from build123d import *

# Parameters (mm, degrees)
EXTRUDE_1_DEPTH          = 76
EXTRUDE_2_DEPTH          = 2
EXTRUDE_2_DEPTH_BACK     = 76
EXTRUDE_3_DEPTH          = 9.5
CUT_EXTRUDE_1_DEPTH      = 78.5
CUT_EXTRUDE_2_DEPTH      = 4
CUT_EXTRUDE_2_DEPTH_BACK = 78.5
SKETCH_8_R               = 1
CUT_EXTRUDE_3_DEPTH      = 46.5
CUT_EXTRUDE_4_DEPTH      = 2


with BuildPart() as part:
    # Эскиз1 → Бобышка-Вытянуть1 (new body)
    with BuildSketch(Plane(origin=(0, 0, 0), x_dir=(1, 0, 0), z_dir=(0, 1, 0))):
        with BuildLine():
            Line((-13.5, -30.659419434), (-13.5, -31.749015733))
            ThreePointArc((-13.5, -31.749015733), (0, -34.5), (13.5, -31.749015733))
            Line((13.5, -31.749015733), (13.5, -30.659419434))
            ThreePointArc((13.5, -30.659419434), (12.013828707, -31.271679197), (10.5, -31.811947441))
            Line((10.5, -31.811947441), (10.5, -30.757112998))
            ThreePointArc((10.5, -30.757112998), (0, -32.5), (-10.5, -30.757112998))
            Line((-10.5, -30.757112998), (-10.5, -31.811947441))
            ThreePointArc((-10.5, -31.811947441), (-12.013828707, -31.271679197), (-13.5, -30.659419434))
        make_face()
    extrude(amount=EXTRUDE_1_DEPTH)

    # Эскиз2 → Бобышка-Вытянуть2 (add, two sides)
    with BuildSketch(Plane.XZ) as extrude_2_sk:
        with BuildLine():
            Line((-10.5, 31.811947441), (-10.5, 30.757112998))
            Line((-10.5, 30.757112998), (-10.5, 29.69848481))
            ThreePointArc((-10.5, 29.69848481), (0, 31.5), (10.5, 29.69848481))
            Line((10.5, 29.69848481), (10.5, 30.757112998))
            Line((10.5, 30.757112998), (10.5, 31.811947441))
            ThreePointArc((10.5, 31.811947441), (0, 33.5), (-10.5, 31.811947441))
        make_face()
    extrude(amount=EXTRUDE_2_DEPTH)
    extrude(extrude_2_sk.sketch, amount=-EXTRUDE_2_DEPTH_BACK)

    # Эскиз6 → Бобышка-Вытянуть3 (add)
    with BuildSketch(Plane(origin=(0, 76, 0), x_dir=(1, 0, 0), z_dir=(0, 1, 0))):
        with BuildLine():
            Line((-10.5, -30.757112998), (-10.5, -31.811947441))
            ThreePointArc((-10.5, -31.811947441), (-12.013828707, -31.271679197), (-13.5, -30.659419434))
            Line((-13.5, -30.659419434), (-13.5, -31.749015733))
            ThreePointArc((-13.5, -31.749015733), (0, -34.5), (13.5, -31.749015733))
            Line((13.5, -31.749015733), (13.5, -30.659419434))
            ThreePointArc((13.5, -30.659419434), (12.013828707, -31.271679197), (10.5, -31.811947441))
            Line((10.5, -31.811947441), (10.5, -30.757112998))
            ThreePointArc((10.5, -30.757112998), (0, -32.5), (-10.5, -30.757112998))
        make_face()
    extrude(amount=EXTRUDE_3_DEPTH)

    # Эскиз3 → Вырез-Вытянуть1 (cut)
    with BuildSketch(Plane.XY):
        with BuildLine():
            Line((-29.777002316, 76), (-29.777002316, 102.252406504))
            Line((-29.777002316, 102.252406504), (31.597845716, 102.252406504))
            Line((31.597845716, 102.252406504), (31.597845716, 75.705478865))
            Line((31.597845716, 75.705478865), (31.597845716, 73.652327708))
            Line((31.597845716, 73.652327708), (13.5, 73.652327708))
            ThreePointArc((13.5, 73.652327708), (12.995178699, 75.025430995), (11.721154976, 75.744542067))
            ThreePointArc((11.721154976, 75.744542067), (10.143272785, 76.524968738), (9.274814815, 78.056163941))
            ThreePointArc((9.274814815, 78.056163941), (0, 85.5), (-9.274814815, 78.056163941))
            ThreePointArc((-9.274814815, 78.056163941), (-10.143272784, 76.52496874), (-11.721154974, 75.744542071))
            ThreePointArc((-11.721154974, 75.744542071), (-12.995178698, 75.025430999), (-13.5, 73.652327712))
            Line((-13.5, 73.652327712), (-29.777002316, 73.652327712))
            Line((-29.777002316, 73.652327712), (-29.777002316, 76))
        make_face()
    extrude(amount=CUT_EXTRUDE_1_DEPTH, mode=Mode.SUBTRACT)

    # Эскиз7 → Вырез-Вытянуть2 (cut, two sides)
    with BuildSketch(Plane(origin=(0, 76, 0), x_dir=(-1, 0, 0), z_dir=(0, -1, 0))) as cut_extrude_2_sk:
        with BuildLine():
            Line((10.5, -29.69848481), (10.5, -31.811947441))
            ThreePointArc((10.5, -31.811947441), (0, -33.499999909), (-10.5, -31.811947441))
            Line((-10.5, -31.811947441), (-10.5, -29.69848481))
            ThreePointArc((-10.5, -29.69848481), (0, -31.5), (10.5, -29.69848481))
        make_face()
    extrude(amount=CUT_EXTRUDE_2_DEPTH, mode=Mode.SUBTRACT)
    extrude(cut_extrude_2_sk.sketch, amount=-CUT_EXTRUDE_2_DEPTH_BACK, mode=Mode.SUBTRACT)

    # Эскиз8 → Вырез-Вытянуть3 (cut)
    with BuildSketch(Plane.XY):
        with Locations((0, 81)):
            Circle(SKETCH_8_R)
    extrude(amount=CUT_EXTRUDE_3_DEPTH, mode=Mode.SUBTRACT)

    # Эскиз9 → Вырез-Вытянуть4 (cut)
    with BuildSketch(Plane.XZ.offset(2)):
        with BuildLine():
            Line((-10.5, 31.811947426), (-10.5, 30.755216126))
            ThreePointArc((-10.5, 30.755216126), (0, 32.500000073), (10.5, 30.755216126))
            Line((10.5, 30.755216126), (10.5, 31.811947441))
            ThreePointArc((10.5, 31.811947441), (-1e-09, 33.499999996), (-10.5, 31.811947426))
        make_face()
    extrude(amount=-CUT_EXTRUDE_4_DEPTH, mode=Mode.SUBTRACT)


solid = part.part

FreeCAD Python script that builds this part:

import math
import FreeCAD as App
import Part
import Sketcher
from FreeCAD import Vector

doc = App.newDocument("Part")
body = doc.addObject("PartDesign::Body", "Body")

# Sketch on XZ plane
sketch1 = body.newObject("Sketcher::SketchObject", "Sketch")
sketch1.AttachmentSupport = (doc.getObject("XZ_Plane"), [""])
sketch1.MapMode = "FlatFace"
sketch1.addGeometry(Part.LineSegment(Vector(-13.5, 30.7, 0), Vector(-13.5, 31.7, 0)), False)
sketch1.addGeometry(Part.ArcOfCircle(Part.Circle(Vector(0, 0, 0), Vector(0, 0, 1), 34.5), math.radians(67), math.radians(113)), False)
sketch1.addGeometry(Part.LineSegment(Vector(13.5, 31.7, 0), Vector(13.5, 30.7, 0)), False)
sketch1.addGeometry(Part.ArcOfCircle(Part.Circle(Vector(0, 0, 0), Vector(0, 0, 1), 33.5), math.radians(66.24), math.radians(71.73)), False)
sketch1.addGeometry(Part.LineSegment(Vector(10.5, 31.8, 0), Vector(10.5, 30.8, 0)), False)
sketch1.addGeometry(Part.ArcOfCircle(Part.Circle(Vector(0, 0, 0), Vector(0, 0, 1), 32.5), math.radians(71), math.radians(109)), False)
sketch1.addGeometry(Part.LineSegment(Vector(-10.5, 30.8, 0), Vector(-10.5, 31.8, 0)), False)
sketch1.addGeometry(Part.ArcOfCircle(Part.Circle(Vector(0, 0, 0), Vector(0, 0, 1), 33.5), math.radians(108.27), math.radians(113.76)), False)
sketch1.addConstraint(Sketcher.Constraint("Coincident", 0, 2, 1, 2))
sketch1.addConstraint(Sketcher.Constraint("Coincident", 1, 1, 2, 1))
sketch1.addConstraint(Sketcher.Constraint("Coincident", 2, 2, 3, 1))
sketch1.addConstraint(Sketcher.Constraint("Coincident", 3, 2, 4, 1))
sketch1.addConstraint(Sketcher.Constraint("Coincident", 4, 2, 5, 1))
sketch1.addConstraint(Sketcher.Constraint("Coincident", 5, 2, 6, 1))
sketch1.addConstraint(Sketcher.Constraint("Coincident", 6, 2, 7, 1))
sketch1.addConstraint(Sketcher.Constraint("Coincident", 7, 2, 0, 1))
sketch1.addConstraint(Sketcher.Constraint("Vertical", 0))
sketch1.addConstraint(Sketcher.Constraint("Vertical", 2))
sketch1.addConstraint(Sketcher.Constraint("Vertical", 4))
sketch1.addConstraint(Sketcher.Constraint("Vertical", 6))
sketch1.addConstraint(Sketcher.Constraint("Coincident", 1, 3, -1, 1))
sketch1.addConstraint(Sketcher.Constraint("Coincident", 3, 3, -1, 1))
sketch1.addConstraint(Sketcher.Constraint("Coincident", 5, 3, -1, 1))
sketch1.addConstraint(Sketcher.Constraint("Coincident", 7, 3, -1, 1))
sketch1.addConstraint(Sketcher.Constraint("Equal", 3, 7))
sketch1.addConstraint(Sketcher.Constraint("Horizontal", 0, 2, 1, 1))
sketch1.addConstraint(Sketcher.Constraint("Horizontal", 4, 2, 5, 2))
sketch1.addConstraint(Sketcher.Constraint("Radius", 1, 34.5))
sketch1.addConstraint(Sketcher.Constraint("Radius", 3, 33.5))
sketch1.addConstraint(Sketcher.Constraint("Radius", 5, 32.5))
sketch1.addConstraint(Sketcher.Constraint("DistanceX", 0, 2, 1, 1, 27.0))
sketch1.addConstraint(Sketcher.Constraint("DistanceX", 3, 2, 1, 1, 3.0))
pad1 = body.newObject("PartDesign::Pad", "Pad")
pad1.Profile = sketch1
pad1.Length = 76
pad1.Reversed = True

# Sketch on XZ plane
sketch2 = body.newObject("Sketcher::SketchObject", "Sketch001")
sketch2.AttachmentSupport = (doc.getObject("XZ_Plane"), [""])
sketch2.MapMode = "FlatFace"
sketch2.addGeometry(Part.LineSegment(Vector(-10.5, 31.8, 0), Vector(-10.5, 29.7, 0)), False)
sketch2.addGeometry(Part.ArcOfCircle(Part.Circle(Vector(0, 0, 0), Vector(0, 0, 1), 31.5), math.radians(71), math.radians(109)), False)
sketch2.addGeometry(Part.LineSegment(Vector(10.5, 29.7, 0), Vector(10.5, 31.8, 0)), False)
sketch2.addGeometry(Part.ArcOfCircle(Part.Circle(Vector(0, 0, 0), Vector(0, 0, 1), 33.5), math.radians(72), math.radians(108)), False)
sketch2.addConstraint(Sketcher.Constraint("Coincident", 0, 2, 1, 2))
sketch2.addConstraint(Sketcher.Constraint("Coincident", 1, 1, 2, 1))
sketch2.addConstraint(Sketcher.Constraint("Coincident", 2, 2, 3, 1))
sketch2.addConstraint(Sketcher.Constraint("Coincident", 3, 2, 0, 1))
sketch2.addConstraint(Sketcher.Constraint("Vertical", 0))
sketch2.addConstraint(Sketcher.Constraint("Vertical", 2))
sketch2.addConstraint(Sketcher.Constraint("Coincident", 1, 3, -1, 1))
sketch2.addConstraint(Sketcher.Constraint("Coincident", 3, 3, -1, 1))
sketch2.addConstraint(Sketcher.Constraint("Horizontal", 0, 2, 1, 1))
sketch2.addConstraint(Sketcher.Constraint("Radius", 1, 31.5))
sketch2.addConstraint(Sketcher.Constraint("Radius", 3, 33.5))
sketch2.addConstraint(Sketcher.Constraint("DistanceX", 0, 2, 1, 1, 21.0))
pad2 = body.newObject("PartDesign::Pad", "Pad001")
pad2.Profile = sketch2
pad2.Type = "TwoLengths"
pad2.Length = 2
pad2.Length2 = 76

# Sketch on XZ plane
sketch3 = body.newObject("Sketcher::SketchObject", "Sketch002")
sketch3.AttachmentSupport = (doc.getObject("XZ_Plane"), [""])
sketch3.MapMode = "FlatFace"
sketch3.AttachmentOffset = App.Placement(Vector(0, 0, -76), App.Rotation())
sketch3.addGeometry(Part.LineSegment(Vector(-10.5, 30.8, 0), Vector(-10.5, 31.8, 0)), False)
sketch3.addGeometry(Part.ArcOfCircle(Part.Circle(Vector(0, 0, 0), Vector(0, 0, 1), 33.5), math.radians(108.27), math.radians(113.76)), False)
sketch3.addGeometry(Part.LineSegment(Vector(-13.5, 30.7, 0), Vector(-13.5, 31.7, 0)), False)
sketch3.addGeometry(Part.ArcOfCircle(Part.Circle(Vector(0, 0, 0), Vector(0, 0, 1), 34.5), math.radians(67), math.radians(113)), False)
sketch3.addGeometry(Part.LineSegment(Vector(13.5, 31.7, 0), Vector(13.5, 30.7, 0)), False)
sketch3.addGeometry(Part.ArcOfCircle(Part.Circle(Vector(0, 0, 0), Vector(0, 0, 1), 33.5), math.radians(66.24), math.radians(71.73)), False)
sketch3.addGeometry(Part.LineSegment(Vector(10.5, 31.8, 0), Vector(10.5, 30.8, 0)), False)
sketch3.addGeometry(Part.ArcOfCircle(Part.Circle(Vector(0, 0, 0), Vector(0, 0, 1), 32.5), math.radians(71), math.radians(109)), False)
sketch3.addConstraint(Sketcher.Constraint("Coincident", 0, 2, 1, 1))
sketch3.addConstraint(Sketcher.Constraint("Coincident", 1, 2, 2, 1))
sketch3.addConstraint(Sketcher.Constraint("Coincident", 2, 2, 3, 2))
sketch3.addConstraint(Sketcher.Constraint("Coincident", 3, 1, 4, 1))
sketch3.addConstraint(Sketcher.Constraint("Coincident", 4, 2, 5, 1))
sketch3.addConstraint(Sketcher.Constraint("Coincident", 5, 2, 6, 1))
sketch3.addConstraint(Sketcher.Constraint("Coincident", 6, 2, 7, 1))
sketch3.addConstraint(Sketcher.Constraint("Coincident", 7, 2, 0, 1))
sketch3.addConstraint(Sketcher.Constraint("Vertical", 0))
sketch3.addConstraint(Sketcher.Constraint("Vertical", 2))
sketch3.addConstraint(Sketcher.Constraint("Vertical", 4))
sketch3.addConstraint(Sketcher.Constraint("Vertical", 6))
sketch3.addConstraint(Sketcher.Constraint("Coincident", 1, 3, -1, 1))
sketch3.addConstraint(Sketcher.Constraint("Coincident", 3, 3, -1, 1))
sketch3.addConstraint(Sketcher.Constraint("Coincident", 5, 3, -1, 1))
sketch3.addConstraint(Sketcher.Constraint("Coincident", 7, 3, -1, 1))
sketch3.addConstraint(Sketcher.Constraint("Equal", 1, 5))
sketch3.addConstraint(Sketcher.Constraint("Horizontal", 2, 2, 3, 1))
sketch3.addConstraint(Sketcher.Constraint("Horizontal", 0, 2, 5, 2))
sketch3.addConstraint(Sketcher.Constraint("Radius", 1, 33.5))
sketch3.addConstraint(Sketcher.Constraint("Radius", 3, 34.5))
sketch3.addConstraint(Sketcher.Constraint("Radius", 7, 32.5))
sketch3.addConstraint(Sketcher.Constraint("DistanceX", 1, 2, 0, 2, 3.0))
sketch3.addConstraint(Sketcher.Constraint("DistanceX", 0, 2, 3, 1, 24.0))
pad3 = body.newObject("PartDesign::Pad", "Pad002")
pad3.Profile = sketch3
pad3.Length = 9.5
pad3.Reversed = True

# Sketch on XY plane
sketch4 = body.newObject("Sketcher::SketchObject", "Sketch003")
sketch4.AttachmentSupport = (doc.getObject("XY_Plane"), [""])
sketch4.MapMode = "FlatFace"
sketch4.addGeometry(Part.LineSegment(Vector(31.6, 102.3, 0), Vector(-29.8, 102.3, 0)), False)
sketch4.addGeometry(Part.LineSegment(Vector(-29.8, 102.3, 0), Vector(-29.8, 73.7, 0)), False)
sketch4.addGeometry(Part.LineSegment(Vector(-29.8, 73.7, 0), Vector(-13.5, 73.7, 0)), False)
sketch4.addGeometry(Part.ArcOfCircle(Part.Circle(Vector(-11.4, 73.7, 0), Vector(0, 0, 1), 2.1), math.radians(99), math.radians(180)), False)
sketch4.addGeometry(Part.ArcOfCircle(Part.Circle(Vector(-12.2, 78.7, 0), Vector(0, 0, 1), 3), math.radians(-81), math.radians(-12)), False)
sketch4.addGeometry(Part.ArcOfCircle(Part.Circle(Vector(0, 76, 0), Vector(0, 0, 1), 9.5), math.radians(12), math.radians(168)), False)
sketch4.addGeometry(Part.ArcOfCircle(Part.Circle(Vector(12.2, 78.7, 0), Vector(0, 0, 1), 3), math.radians(-168), math.radians(-99)), False)
sketch4.addGeometry(Part.ArcOfCircle(Part.Circle(Vector(11.4, 73.7, 0), Vector(0, 0, 1), 2.1), math.radians(0), math.radians(81)), False)
sketch4.addGeometry(Part.LineSegment(Vector(13.5, 73.7, 0), Vector(31.6, 73.7, 0)), False)
sketch4.addGeometry(Part.LineSegment(Vector(31.6, 73.7, 0), Vector(31.6, 102.3, 0)), False)
sketch4.addConstraint(Sketcher.Constraint("Coincident", 0, 2, 1, 1))
sketch4.addConstraint(Sketcher.Constraint("Coincident", 1, 2, 2, 1))
sketch4.addConstraint(Sketcher.Constraint("Coincident", 2, 2, 3, 2))
sketch4.addConstraint(Sketcher.Constraint("Tangent", 3, 1, 4, 1))
sketch4.addConstraint(Sketcher.Constraint("Tangent", 4, 2, 5, 2))
sketch4.addConstraint(Sketcher.Constraint("Tangent", 5, 1, 6, 1))
sketch4.addConstraint(Sketcher.Constraint("Tangent", 6, 2, 7, 2))
sketch4.addConstraint(Sketcher.Constraint("Coincident", 7, 1, 8, 1))
sketch4.addConstraint(Sketcher.Constraint("Coincident", 8, 2, 9, 1))
sketch4.addConstraint(Sketcher.Constraint("Coincident", 9, 2, 0, 1))
sketch4.addConstraint(Sketcher.Constraint("Horizontal", 0))
sketch4.addConstraint(Sketcher.Constraint("Vertical", 1))
sketch4.addConstraint(Sketcher.Constraint("Horizontal", 2))
sketch4.addConstraint(Sketcher.Constraint("Horizontal", 8))
sketch4.addConstraint(Sketcher.Constraint("Vertical", 9))
sketch4.addConstraint(Sketcher.Constraint("Equal", 4, 6))
sketch4.addConstraint(Sketcher.Constraint("Equal", 3, 7))
sketch4.addConstraint(Sketcher.Constraint("Symmetric", 4, 3, 6, 3, -2))
sketch4.addConstraint(Sketcher.Constraint("Symmetric", 2, 2, 7, 1, -2))
sketch4.addConstraint(Sketcher.Constraint("Horizontal", 7, 3, 1, 2))
sketch4.addConstraint(Sketcher.Constraint("Radius", 4, 3.0))
sketch4.addConstraint(Sketcher.Constraint("Radius", 5, 9.5))
sketch4.addConstraint(Sketcher.Constraint("DistanceY", -1, 1, 5, 3, 76.0))
sketch4.addConstraint(Sketcher.Constraint("DistanceX", 2, 2, -1, 1, 13.5))
sketch4.addConstraint(Sketcher.Constraint("Radius", 3, 2.119817))
sketch4.addConstraint(Sketcher.Constraint("DistanceX", 3, 3, 5, 1, 20.654998))
sketch4.addConstraint(Sketcher.Constraint("DistanceX", 0, 2, 0, 1, 61.374848))
sketch4.addConstraint(Sketcher.Constraint("DistanceY", 1, 2, 1, 1, 28.600079))
sketch4.addConstraint(Sketcher.Constraint("DistanceX", 0, 2, 4, 3, 17.573299))
pocket1 = body.newObject("PartDesign::Pocket", "Pocket")
pocket1.Profile = sketch4
pocket1.Length = 78.5
pocket1.Reversed = True

# Sketch on XZ plane
sketch5 = body.newObject("Sketcher::SketchObject", "Sketch004")
sketch5.AttachmentSupport = (doc.getObject("XZ_Plane"), [""])
sketch5.MapMode = "FlatFace"
sketch5.AttachmentOffset = App.Placement(Vector(0, 0, -76), App.Rotation())
sketch5.addGeometry(Part.LineSegment(Vector(-10.5, 31.8, 0), Vector(-10.5, 29.7, 0)), False)
sketch5.addGeometry(Part.ArcOfCircle(Part.Circle(Vector(0, 0, 0), Vector(0, 0, 1), 31.5), math.radians(71), math.radians(109)), False)
sketch5.addGeometry(Part.LineSegment(Vector(10.5, 29.7, 0), Vector(10.5, 31.8, 0)), False)
sketch5.addGeometry(Part.ArcOfCircle(Part.Circle(Vector(0, 0, 0), Vector(0, 0, 1), 33.5), math.radians(72), math.radians(108)), False)
sketch5.addConstraint(Sketcher.Constraint("Coincident", 0, 2, 1, 2))
sketch5.addConstraint(Sketcher.Constraint("Coincident", 1, 1, 2, 1))
sketch5.addConstraint(Sketcher.Constraint("Coincident", 2, 2, 3, 1))
sketch5.addConstraint(Sketcher.Constraint("Coincident", 3, 2, 0, 1))
sketch5.addConstraint(Sketcher.Constraint("Vertical", 0))
sketch5.addConstraint(Sketcher.Constraint("Vertical", 2))
sketch5.addConstraint(Sketcher.Constraint("Coincident", 1, 3, -1, 1))
sketch5.addConstraint(Sketcher.Constraint("Coincident", 3, 3, -1, 1))
sketch5.addConstraint(Sketcher.Constraint("Horizontal", 0, 2, 1, 1))
sketch5.addConstraint(Sketcher.Constraint("Radius", 1, 31.5))
sketch5.addConstraint(Sketcher.Constraint("Radius", 3, 33.500002))
sketch5.addConstraint(Sketcher.Constraint("DistanceX", 0, 2, 1, 1, 21.0))
pocket2 = body.newObject("PartDesign::Pocket", "Pocket001")
pocket2.Profile = sketch5
pocket2.Type = "TwoLengths"
pocket2.Length = 4
pocket2.Length2 = 78.5
pocket2.Reversed = True

# Sketch on XY plane
sketch6 = body.newObject("Sketcher::SketchObject", "Sketch005")
sketch6.AttachmentSupport = (doc.getObject("XY_Plane"), [""])
sketch6.MapMode = "FlatFace"
sketch6.addGeometry(Part.Circle(Vector(0, 81, 0), Vector(0, 0, 1), 1), False)
sketch6.addConstraint(Sketcher.Constraint("PointOnObject", 0, 3, -2))
sketch6.addConstraint(Sketcher.Constraint("Diameter", 0, 2.0))
sketch6.addConstraint(Sketcher.Constraint("DistanceY", -1, 1, 0, 3, 81.0))
pocket3 = body.newObject("PartDesign::Pocket", "Pocket002")
pocket3.Profile = sketch6
pocket3.Length = 46.5
pocket3.Reversed = True

# Sketch on XZ plane
sketch7 = body.newObject("Sketcher::SketchObject", "Sketch006")
sketch7.AttachmentSupport = (doc.getObject("XZ_Plane"), [""])
sketch7.MapMode = "FlatFace"
sketch7.AttachmentOffset = App.Placement(Vector(0, 0, 2), App.Rotation())
sketch7.addGeometry(Part.LineSegment(Vector(-10.5, 31.8, 0), Vector(-10.5, 30.8, 0)), False)
sketch7.addGeometry(Part.ArcOfCircle(Part.Circle(Vector(0, 0, 0), Vector(0, 0, 1), 32.5), math.radians(71), math.radians(109)), False)
sketch7.addGeometry(Part.LineSegment(Vector(10.5, 30.8, 0), Vector(10.5, 31.8, 0)), False)
sketch7.addGeometry(Part.ArcOfCircle(Part.Circle(Vector(0, 0, 0), Vector(0, 0, 1), 33.5), math.radians(72), math.radians(108)), False)
sketch7.addConstraint(Sketcher.Constraint("Coincident", 0, 2, 1, 2))
sketch7.addConstraint(Sketcher.Constraint("Coincident", 1, 1, 2, 1))
sketch7.addConstraint(Sketcher.Constraint("Coincident", 2, 2, 3, 1))
sketch7.addConstraint(Sketcher.Constraint("Coincident", 3, 2, 0, 1))
sketch7.addConstraint(Sketcher.Constraint("Vertical", 0))
sketch7.addConstraint(Sketcher.Constraint("Vertical", 2))
sketch7.addConstraint(Sketcher.Constraint("Coincident", 3, 3, -1, 1))
sketch7.addConstraint(Sketcher.Constraint("Symmetric", 0, 2, 1, 1, -2))
sketch7.addConstraint(Sketcher.Constraint("Radius", 3, 33.5))
sketch7.addConstraint(Sketcher.Constraint("DistanceX", 0, 2, 1, 1, 21.0))
sketch7.addConstraint(Sketcher.Constraint("Radius", 1, 32.466562))
sketch7.addConstraint(Sketcher.Constraint("DistanceY", 0, 2, 0, 1, 1.056731))
pocket4 = body.newObject("PartDesign::Pocket", "Pocket003")
pocket4.Profile = sketch7
pocket4.Length = 2

doc.recompute()
